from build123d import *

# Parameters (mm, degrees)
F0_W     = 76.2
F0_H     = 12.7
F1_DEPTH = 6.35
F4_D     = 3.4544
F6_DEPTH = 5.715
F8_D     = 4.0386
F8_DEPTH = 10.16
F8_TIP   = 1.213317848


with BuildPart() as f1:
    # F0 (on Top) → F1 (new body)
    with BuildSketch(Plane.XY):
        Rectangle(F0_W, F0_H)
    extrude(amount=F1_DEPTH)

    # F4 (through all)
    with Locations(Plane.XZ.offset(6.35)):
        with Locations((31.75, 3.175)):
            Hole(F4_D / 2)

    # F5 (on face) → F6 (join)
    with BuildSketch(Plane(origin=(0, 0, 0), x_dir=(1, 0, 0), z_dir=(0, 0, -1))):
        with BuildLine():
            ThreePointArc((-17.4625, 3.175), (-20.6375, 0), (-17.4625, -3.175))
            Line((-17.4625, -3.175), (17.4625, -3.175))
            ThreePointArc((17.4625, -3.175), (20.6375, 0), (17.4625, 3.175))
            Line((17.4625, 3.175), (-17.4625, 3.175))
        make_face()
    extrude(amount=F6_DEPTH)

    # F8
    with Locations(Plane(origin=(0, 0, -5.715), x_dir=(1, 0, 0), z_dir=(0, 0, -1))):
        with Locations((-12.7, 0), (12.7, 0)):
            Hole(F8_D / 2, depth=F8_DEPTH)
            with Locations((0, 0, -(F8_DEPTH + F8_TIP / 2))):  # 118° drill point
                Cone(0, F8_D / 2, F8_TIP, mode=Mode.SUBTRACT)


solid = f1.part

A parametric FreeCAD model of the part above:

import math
import FreeCAD as App
import Part
import Sketcher
Q = App.Units.Quantity


def add_polygon(sketch, points):
    """Adds a closed chain of lines whose ends are joined by coincident constraints."""
    first, n = sketch.GeometryCount, len(points)
    for a, b in zip(points, points[1:] + points[:1]):
        sketch.addGeometry(Part.LineSegment(App.Vector(*a, 0), App.Vector(*b, 0)), False)
    for i in range(n):
        sketch.addConstraint(Sketcher.Constraint("Coincident", first + i, 2, first + (i + 1) % n, 1))

doc = App.newDocument("Part")
body = doc.addObject("PartDesign::Body", "Body")

sketch1 = body.newObject("Sketcher::SketchObject", "Sketch")
sketch1.AttachmentSupport = (doc.getObject("XY_Plane"), [""])
sketch1.MapMode = "FlatFace"
add_polygon(sketch1, [(-38.1, 6.35), (-38.1, -6.35), (38.1, -6.35), (38.1, 6.35)])
sketch1.addConstraint([
    Sketcher.Constraint("Vertical", 0),
    Sketcher.Constraint("Horizontal", 1),
    Sketcher.Constraint("Vertical", 2),
    Sketcher.Constraint("Horizontal", 3),
    Sketcher.Constraint("Symmetric", 0, 2, 2, 2, -1, 1),
    Sketcher.Constraint("DistanceX", 1, 1, 1, 2, Q("3 in")),
    Sketcher.Constraint("DistanceY", 0, 2, 0, 1, Q("0.5 in")),
])
pad1 = body.newObject("PartDesign::Pad", "Pad")
pad1.Profile = sketch1
pad1.Length = Q("0.25 in")

sketch2 = body.newObject("Sketcher::SketchObject", "Sketch001")
sketch2.AttachmentSupport = (doc.getObject("XZ_Plane"), [""])
sketch2.MapMode = "FlatFace"
sketch2.AttachmentOffset = App.Placement(App.Vector(0, 0, 0.25 * 25.4), App.Rotation())
sketch2.addGeometry(Part.Circle(App.Vector(31.75, 3.175, 0), App.Vector(0, 0, 1), 1.7272), False)
sketch2.addConstraint([
    Sketcher.Constraint("Diameter", 0, Q("0.136 in")),
    Sketcher.Constraint("DistanceX", -1, 1, 0, 3, Q("1.25 in")),
    Sketcher.Constraint("DistanceY", -1, 1, 0, 3, Q("0.125 in")),
])
doc.recompute()
hole = body.newObject("PartDesign::Hole", "Hole")
hole.Profile = sketch2
hole.ThreadType = "None"
hole.Diameter = Q("0.136 in")
hole.DepthType = "ThroughAll"

sketch3 = body.newObject("Sketcher::SketchObject", "Sketch002")
sketch3.AttachmentSupport = (doc.getObject("XY_Plane"), [""])
sketch3.MapMode = "FlatFace"
sketch3.addGeometry([
    Part.ArcOfCircle(Part.Circle(App.Vector(-17.4625, 0, 0), App.Vector(0, 0, 1), 3.175), math.radians(90), math.radians(270)),
    Part.LineSegment(App.Vector(-17.4625, 3.175, 0), App.Vector(17.4625, 3.175, 0)),
    Part.ArcOfCircle(Part.Circle(App.Vector(17.4625, 0, 0), App.Vector(0, 0, 1), 3.175), math.radians(-90), math.radians(90)),
    Part.LineSegment(App.Vector(17.4625, -3.175, 0), App.Vector(-17.4625, -3.175, 0)),
], False)
sketch3.addConstraint([
    Sketcher.Constraint("Tangent", 0, 1, 1, 1),
    Sketcher.Constraint("Tangent", 1, 2, 2, 2),
    Sketcher.Constraint("Tangent", 2, 1, 3, 1),
    Sketcher.Constraint("Tangent", 3, 2, 0, 2),
    Sketcher.Constraint("Horizontal", 1),
    Sketcher.Constraint("Horizontal", 3),
    Sketcher.Constraint("Symmetric", 0, 3, 2, 3, -1, 1),
    Sketcher.Constraint("Radius", 0, Q("0.125 in")),
    Sketcher.Constraint("DistanceX", 1, 1, 1, 2, Q("1.375 in")),
])
pad2 = body.newObject("PartDesign::Pad", "Pad001")
pad2.Profile = sketch3
pad2.Length = Q("0.225 in")
pad2.Reversed = True

sketch4 = body.newObject("Sketcher::SketchObject", "Sketch003")
sketch4.AttachmentSupport = (doc.getObject("XY_Plane"), [""])
sketch4.MapMode = "FlatFace"
sketch4.AttachmentOffset = App.Placement(App.Vector(0, 0, -0.225 * 25.4), App.Rotation())
sketch4.addGeometry([
    Part.Circle(App.Vector(-12.7, 0, 0), App.Vector(0, 0, 1), 2.0193),
    Part.Circle(App.Vector(12.7, 0, 0), App.Vector(0, 0, 1), 2.0193),
], False)
sketch4.addConstraint([
    Sketcher.Constraint("Equal", 0, 1),
    Sketcher.Constraint("Symmetric", 0, 3, 1, 3, -1, 1),
    Sketcher.Constraint("PointOnObject", 0, 3, -1),
    Sketcher.Constraint("Diameter", 0, Q("0.159 in")),
    Sketcher.Constraint("DistanceX", 0, 3, 1, 3, Q("1 in")),
])
doc.recompute()
hole2 = body.newObject("PartDesign::Hole", "Hole001")
hole2.Profile = sketch4
hole2.ThreadType = "None"
hole2.Diameter = Q("0.159 in")
hole2.DepthType = "Dimension"
hole2.Depth = Q("0.4 in")
hole2.DrillPoint = "Angled"
hole2.DrillPointAngle = 118
hole2.Reversed = True

doc.recompute()
